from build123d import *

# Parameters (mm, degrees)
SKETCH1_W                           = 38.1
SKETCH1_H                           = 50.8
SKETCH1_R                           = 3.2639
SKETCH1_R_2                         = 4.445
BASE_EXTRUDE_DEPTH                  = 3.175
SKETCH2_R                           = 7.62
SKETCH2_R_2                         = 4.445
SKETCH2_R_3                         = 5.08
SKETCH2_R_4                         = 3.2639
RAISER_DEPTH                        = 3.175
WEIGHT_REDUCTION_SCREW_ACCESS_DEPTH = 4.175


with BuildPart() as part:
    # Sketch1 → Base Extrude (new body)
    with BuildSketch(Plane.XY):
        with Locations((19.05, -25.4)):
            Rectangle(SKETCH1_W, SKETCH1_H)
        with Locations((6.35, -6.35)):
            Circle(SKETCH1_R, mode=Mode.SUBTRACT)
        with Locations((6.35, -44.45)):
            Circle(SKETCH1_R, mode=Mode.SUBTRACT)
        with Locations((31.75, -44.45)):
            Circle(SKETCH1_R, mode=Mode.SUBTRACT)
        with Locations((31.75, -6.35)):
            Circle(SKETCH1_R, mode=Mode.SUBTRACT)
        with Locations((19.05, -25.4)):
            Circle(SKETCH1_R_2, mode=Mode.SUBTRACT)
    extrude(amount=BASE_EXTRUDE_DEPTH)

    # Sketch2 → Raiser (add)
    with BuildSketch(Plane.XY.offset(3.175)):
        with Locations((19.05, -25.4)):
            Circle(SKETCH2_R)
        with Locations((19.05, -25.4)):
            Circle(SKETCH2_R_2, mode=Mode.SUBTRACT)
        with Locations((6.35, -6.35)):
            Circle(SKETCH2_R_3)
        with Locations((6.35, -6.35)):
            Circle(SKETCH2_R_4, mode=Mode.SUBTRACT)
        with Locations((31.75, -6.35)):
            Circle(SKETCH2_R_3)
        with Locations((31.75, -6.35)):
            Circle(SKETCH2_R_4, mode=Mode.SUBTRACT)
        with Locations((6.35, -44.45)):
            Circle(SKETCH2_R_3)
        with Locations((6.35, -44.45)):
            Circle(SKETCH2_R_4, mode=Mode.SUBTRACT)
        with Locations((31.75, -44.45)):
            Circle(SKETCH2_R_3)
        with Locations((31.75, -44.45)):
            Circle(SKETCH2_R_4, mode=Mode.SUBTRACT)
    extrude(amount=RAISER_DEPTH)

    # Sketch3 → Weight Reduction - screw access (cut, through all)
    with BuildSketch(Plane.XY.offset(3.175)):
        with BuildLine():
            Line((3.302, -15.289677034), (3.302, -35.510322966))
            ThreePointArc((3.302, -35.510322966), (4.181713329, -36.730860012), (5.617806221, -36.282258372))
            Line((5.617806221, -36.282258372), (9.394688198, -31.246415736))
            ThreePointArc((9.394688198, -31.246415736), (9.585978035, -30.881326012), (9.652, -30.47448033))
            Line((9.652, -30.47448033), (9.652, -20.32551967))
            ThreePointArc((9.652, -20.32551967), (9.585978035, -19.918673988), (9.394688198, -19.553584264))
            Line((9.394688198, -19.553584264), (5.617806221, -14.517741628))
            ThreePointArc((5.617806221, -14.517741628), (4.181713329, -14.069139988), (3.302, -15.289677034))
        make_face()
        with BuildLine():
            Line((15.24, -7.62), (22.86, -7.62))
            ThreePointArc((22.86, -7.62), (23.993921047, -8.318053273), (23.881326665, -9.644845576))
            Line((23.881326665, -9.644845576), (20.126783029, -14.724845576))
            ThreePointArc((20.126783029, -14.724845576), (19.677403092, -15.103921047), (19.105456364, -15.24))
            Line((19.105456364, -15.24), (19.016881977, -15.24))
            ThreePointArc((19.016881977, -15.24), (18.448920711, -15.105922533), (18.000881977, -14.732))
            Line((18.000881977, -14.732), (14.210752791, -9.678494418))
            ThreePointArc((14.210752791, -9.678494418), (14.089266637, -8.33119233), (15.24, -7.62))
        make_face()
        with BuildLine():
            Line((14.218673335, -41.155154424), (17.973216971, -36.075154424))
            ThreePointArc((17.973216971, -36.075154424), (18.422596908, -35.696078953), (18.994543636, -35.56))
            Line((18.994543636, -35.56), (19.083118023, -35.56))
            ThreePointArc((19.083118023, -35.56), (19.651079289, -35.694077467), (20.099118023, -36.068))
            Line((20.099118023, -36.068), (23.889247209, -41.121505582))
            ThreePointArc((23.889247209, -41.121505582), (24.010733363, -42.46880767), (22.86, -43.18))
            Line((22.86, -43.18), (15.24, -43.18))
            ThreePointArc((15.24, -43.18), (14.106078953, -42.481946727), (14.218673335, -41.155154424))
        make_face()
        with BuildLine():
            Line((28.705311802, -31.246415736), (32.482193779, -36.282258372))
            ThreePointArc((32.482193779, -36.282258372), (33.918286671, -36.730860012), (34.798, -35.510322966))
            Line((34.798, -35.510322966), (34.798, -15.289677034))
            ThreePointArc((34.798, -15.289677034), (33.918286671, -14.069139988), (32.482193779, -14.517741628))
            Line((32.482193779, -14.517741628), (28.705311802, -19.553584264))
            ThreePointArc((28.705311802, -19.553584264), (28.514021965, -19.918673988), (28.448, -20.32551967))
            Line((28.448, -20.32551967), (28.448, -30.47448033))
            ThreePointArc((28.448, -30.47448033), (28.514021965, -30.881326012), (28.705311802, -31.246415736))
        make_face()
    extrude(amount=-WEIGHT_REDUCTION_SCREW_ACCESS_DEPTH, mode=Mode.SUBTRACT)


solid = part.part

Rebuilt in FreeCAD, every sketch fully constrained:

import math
import FreeCAD as App
import Part
import Sketcher
Q = App.Units.Quantity

doc = App.newDocument("Part")
params = doc.addObject("Spreadsheet::Sheet", "Params")
for row, (alias, value) in enumerate([
    ("sketch1_diameter", "0.35 in"),
    ("sketch1_height", "2 in"),
    ("sketch1_diameter2", "0.257 in"),
    ("sketch1_width", "1.5 in"),
    ("pad1_length", "0.125 in"),
    ("sketch2_diameter", "0.6 in"),
    ("sketch2_diameter2", "0.4 in"),
    ("sketch2_diameter3", "0.35 in"),
    ("sketch2_diameter4", "0.257 in"),
    ("pad2_length", "0.125 in"),
    ("sketch3_radius", "0.05 in"),
    ("sketch3_width", "0.3 in"),
], start=1):
    params.set(f"A{row}", alias)
    params.set(f"B{row}", "=" + value)
    params.setAlias(f"B{row}", alias)

body = doc.addObject("PartDesign::Body", "Body")

# Sketch on XY plane
sketch1 = body.newObject("Sketcher::SketchObject", "Sketch")
sketch1.AttachmentSupport = (doc.getObject("XY_Plane"), [""])
sketch1.MapMode = "FlatFace"
sketch1.addGeometry(Part.LineSegment(App.Vector(0, 0, 0), App.Vector(0, -50.8, 0)), False)
sketch1.addGeometry(Part.LineSegment(App.Vector(0, -50.8, 0), App.Vector(38.1, -50.8, 0)), False)
sketch1.addGeometry(Part.LineSegment(App.Vector(38.1, -50.8, 0), App.Vector(38.1, 0, 0)), False)
sketch1.addGeometry(Part.LineSegment(App.Vector(38.1, 0, 0), App.Vector(0, 0, 0)), False)
sketch1.addGeometry(Part.Circle(App.Vector(6.3, -44.5, 0), App.Vector(0, 0, 1), 3.3), False)
sketch1.addGeometry(Part.Circle(App.Vector(31.8, -44.5, 0), App.Vector(0, 0, 1), 3.3), False)
sketch1.addGeometry(Part.Circle(App.Vector(6.3, -6.3, 0), App.Vector(0, 0, 1), 3.3), False)
sketch1.addGeometry(Part.Circle(App.Vector(19.1, -25.4, 0), App.Vector(0, 0, 1), 4.4), False)
sketch1.addGeometry(Part.Circle(App.Vector(31.8, -6.3, 0), App.Vector(0, 0, 1), 3.3), False)
sketch1.addConstraint(Sketcher.Constraint("Coincident", 0, 2, 1, 1))
sketch1.addConstraint(Sketcher.Constraint("Coincident", 1, 2, 2, 1))
sketch1.addConstraint(Sketcher.Constraint("Coincident", 2, 2, 3, 1))
sketch1.addConstraint(Sketcher.Constraint("Coincident", 3, 2, 0, 1))
sketch1.addConstraint(Sketcher.Constraint("Vertical", 0))
sketch1.addConstraint(Sketcher.Constraint("Horizontal", 1))
sketch1.addConstraint(Sketcher.Constraint("Vertical", 2))
sketch1.addConstraint(Sketcher.Constraint("Horizontal", 3))
sketch1.addConstraint(Sketcher.Constraint("Coincident", 3, 2, -1, 1))
sketch1.addConstraint(Sketcher.Constraint("Equal", 4, 5))
sketch1.addConstraint(Sketcher.Constraint("Equal", 5, 6))
sketch1.addConstraint(Sketcher.Constraint("Equal", 6, 8))
sketch1.addConstraint(Sketcher.Constraint("Horizontal", 4, 3, 5, 3))
sketch1.addConstraint(Sketcher.Constraint("Horizontal", 6, 3, 8, 3))
sketch1.addConstraint(Sketcher.Constraint("Vertical", 4, 3, 6, 3))
sketch1.addConstraint(Sketcher.Constraint("Vertical", 5, 3, 8, 3))
sketch1.addConstraint(Sketcher.Constraint("Diameter", 7, Q("0.35 in")))
sketch1.addConstraint(Sketcher.Constraint("DistanceY", 0, 2, 0, 1, Q("2 in")))
sketch1.addConstraint(Sketcher.Constraint("Diameter", 4, Q("0.257 in")))
sketch1.addConstraint(Sketcher.Constraint("DistanceX", 1, 1, 1, 2, Q("1.5 in")))
sketch1.addConstraint(Sketcher.Constraint("DistanceY", 7, 3, -1, 1, Q("1 in")))
sketch1.addConstraint(Sketcher.Constraint("DistanceX", 4, 3, 5, 3, Q("1 in")))
sketch1.addConstraint(Sketcher.Constraint("DistanceY", 4, 3, 6, 3, Q("1.5 in")))
sketch1.addConstraint(Sketcher.Constraint("DistanceX", 6, 3, 7, 3, Q("0.5 in")))
sketch1.addConstraint(Sketcher.Constraint("DistanceX", -1, 1, 4, 3, Q("0.25 in")))
sketch1.addConstraint(Sketcher.Constraint("DistanceY", 4, 3, -1, 1, Q("1.75 in")))
sketch1.setExpression("Constraints[16]", "Params.sketch1_diameter")
sketch1.setExpression("Constraints[17]", "Params.sketch1_height")
sketch1.setExpression("Constraints[18]", "Params.sketch1_diameter2")
sketch1.setExpression("Constraints[19]", "Params.sketch1_width")
pad1 = body.newObject("PartDesign::Pad", "Pad")
pad1.Profile = sketch1
pad1.setExpression("Length", "Params.pad1_length")

# Sketch on XY plane
sketch2 = body.newObject("Sketcher::SketchObject", "Sketch001")
sketch2.AttachmentSupport = (doc.getObject("XY_Plane"), [""])
sketch2.MapMode = "FlatFace"
sketch2.AttachmentOffset = App.Placement(App.Vector(0, 0, 0.125 * 25.4), App.Rotation())
sketch2.addGeometry(Part.Circle(App.Vector(19.1, -25.4, 0), App.Vector(0, 0, 1), 7.6), False)
sketch2.addGeometry(Part.Circle(App.Vector(19.1, -25.4, 0), App.Vector(0, 0, 1), 4.4), False)
sketch2.addGeometry(Part.Circle(App.Vector(6.3, -6.3, 0), App.Vector(0, 0, 1), 5.1), False)
sketch2.addGeometry(Part.Circle(App.Vector(6.3, -6.3, 0), App.Vector(0, 0, 1), 3.3), False)
sketch2.addGeometry(Part.Circle(App.Vector(31.8, -6.3, 0), App.Vector(0, 0, 1), 5.1), False)
sketch2.addGeometry(Part.Circle(App.Vector(31.8, -6.3, 0), App.Vector(0, 0, 1), 3.3), False)
sketch2.addGeometry(Part.Circle(App.Vector(6.3, -44.5, 0), App.Vector(0, 0, 1), 5.1), False)
sketch2.addGeometry(Part.Circle(App.Vector(6.3, -44.5, 0), App.Vector(0, 0, 1), 3.3), False)
sketch2.addGeometry(Part.Circle(App.Vector(31.8, -44.5, 0), App.Vector(0, 0, 1), 5.1), False)
sketch2.addGeometry(Part.Circle(App.Vector(31.8, -44.5, 0), App.Vector(0, 0, 1), 3.3), False)
sketch2.addConstraint(Sketcher.Constraint("Coincident", 1, 3, 0, 3))
sketch2.addConstraint(Sketcher.Constraint("Coincident", 3, 3, 2, 3))
sketch2.addConstraint(Sketcher.Constraint("Coincident", 5, 3, 4, 3))
sketch2.addConstraint(Sketcher.Constraint("Coincident", 7, 3, 6, 3))
sketch2.addConstraint(Sketcher.Constraint("Coincident", 9, 3, 8, 3))
sketch2.addConstraint(Sketcher.Constraint("Equal", 2, 4))
sketch2.addConstraint(Sketcher.Constraint("Equal", 3, 5))
sketch2.addConstraint(Sketcher.Constraint("Equal", 4, 6))
sketch2.addConstraint(Sketcher.Constraint("Equal", 5, 7))
sketch2.addConstraint(Sketcher.Constraint("Equal", 6, 8))
sketch2.addConstraint(Sketcher.Constraint("Equal", 7, 9))
sketch2.addConstraint(Sketcher.Constraint("Horizontal", 3, 3, 4, 3))
sketch2.addConstraint(Sketcher.Constraint("Horizontal", 7, 3, 8, 3))
sketch2.addConstraint(Sketcher.Constraint("Vertical", 3, 3, 6, 3))
sketch2.addConstraint(Sketcher.Constraint("Vertical", 5, 3, 8, 3))
sketch2.addConstraint(Sketcher.Constraint("Diameter", 0, Q("0.6 in")))
sketch2.addConstraint(Sketcher.Constraint("Diameter", 2, Q("0.4 in")))
sketch2.addConstraint(Sketcher.Constraint("Diameter", 1, Q("0.35 in")))
sketch2.addConstraint(Sketcher.Constraint("Diameter", 3, Q("0.257 in")))
sketch2.addConstraint(Sketcher.Constraint("DistanceY", 0, 3, -1, 1, Q("1 in")))
sketch2.addConstraint(Sketcher.Constraint("DistanceX", 2, 3, 4, 3, Q("1 in")))
sketch2.addConstraint(Sketcher.Constraint("DistanceX", 2, 3, 0, 3, Q("0.5 in")))
sketch2.addConstraint(Sketcher.Constraint("DistanceY", 6, 3, 2, 3, Q("1.5 in")))
sketch2.addConstraint(Sketcher.Constraint("DistanceX", -1, 1, 0, 3, Q("0.75 in")))
sketch2.addConstraint(Sketcher.Constraint("DistanceY", 2, 3, -1, 1, Q("0.25 in")))
sketch2.setExpression("Constraints[15]", "Params.sketch2_diameter")
sketch2.setExpression("Constraints[16]", "Params.sketch2_diameter2")
sketch2.setExpression("Constraints[17]", "Params.sketch2_diameter3")
sketch2.setExpression("Constraints[18]", "Params.sketch2_diameter4")
pad2 = body.newObject("PartDesign::Pad", "Pad001")
pad2.Profile = sketch2
pad2.setExpression("Length", "Params.pad2_length")

# Sketch on XY plane
sketch3 = body.newObject("Sketcher::SketchObject", "Sketch002")
sketch3.AttachmentSupport = (doc.getObject("XY_Plane"), [""])
sketch3.MapMode = "FlatFace"
sketch3.AttachmentOffset = App.Placement(App.Vector(0, 0, 0.125 * 25.4), App.Rotation())
sketch3.addGeometry(Part.LineSegment(App.Vector(3.3, -15.29, 0), App.Vector(3.3, -35.51, 0)), False)
sketch3.addGeometry(Part.ArcOfCircle(Part.Circle(App.Vector(4.59, -35.51, 0), App.Vector(0, 0, 1), 1.29), math.radians(180), math.radians(323)), False)
sketch3.addGeometry(Part.LineSegment(App.Vector(5.62, -36.28, 0), App.Vector(9.39, -31.25, 0)), False)
sketch3.addGeometry(Part.ArcOfCircle(Part.Circle(App.Vector(8.37, -30.47, 0), App.Vector(0, 0, 1), 1.29), math.radians(-37), math.radians(0)), False)
sketch3.addGeometry(Part.LineSegment(App.Vector(9.65, -30.47, 0), App.Vector(9.65, -20.33, 0)), False)
sketch3.addGeometry(Part.ArcOfCircle(Part.Circle(App.Vector(8.37, -20.33, 0), App.Vector(0, 0, 1), 1.29), math.radians(0), math.radians(37)), False)
sketch3.addGeometry(Part.LineSegment(App.Vector(9.39, -19.55, 0), App.Vector(5.62, -14.52, 0)), False)
sketch3.addGeometry(Part.ArcOfCircle(Part.Circle(App.Vector(4.59, -15.29, 0), App.Vector(0, 0, 1), 1.29), math.radians(37), math.radians(180)), False)
sketch3.addGeometry(Part.LineSegment(App.Vector(22.86, -7.62, 0), App.Vector(15.24, -7.62, 0)), False)
sketch3.addGeometry(Part.ArcOfCircle(Part.Circle(App.Vector(15.24, -8.91, 0), App.Vector(0, 0, 1), 1.29), math.radians(90), math.radians(217)), False)
sketch3.addGeometry(Part.LineSegment(App.Vector(14.21, -9.68, 0), App.Vector(18, -14.73, 0)), False)
sketch3.addGeometry(Part.ArcOfCircle(Part.Circle(App.Vector(19.02, -13.97, 0), App.Vector(0, 0, 1), 1.27), math.radians(-143), math.radians(-90)), False)
sketch3.addGeometry(Part.LineSegment(App.Vector(19.02, -15.24, 0), App.Vector(19.11, -15.24, 0)), False)
sketch3.addGeometry(Part.ArcOfCircle(Part.Circle(App.Vector(19.11, -13.97, 0), App.Vector(0, 0, 1), 1.27), math.radians(-90), math.radians(-36)), False)
sketch3.addGeometry(Part.LineSegment(App.Vector(20.13, -14.72, 0), App.Vector(23.88, -9.64, 0)), False)
sketch3.addGeometry(Part.ArcOfCircle(Part.Circle(App.Vector(22.86, -8.89, 0), App.Vector(0, 0, 1), 1.27), math.radians(-36), math.radians(90)), False)
sketch3.addGeometry(Part.LineSegment(App.Vector(17.97, -36.08, 0), App.Vector(14.22, -41.16, 0)), False)
sketch3.addGeometry(Part.ArcOfCircle(Part.Circle(App.Vector(15.24, -41.91, 0), App.Vector(0, 0, 1), 1.27), math.radians(144), math.radians(270)), False)
sketch3.addGeometry(Part.LineSegment(App.Vector(15.24, -43.18, 0), App.Vector(22.86, -43.18, 0)), False)
sketch3.addGeometry(Part.ArcOfCircle(Part.Circle(App.Vector(22.86, -41.89, 0), App.Vector(0, 0, 1), 1.29), math.radians(-90), math.radians(37)), False)
sketch3.addGeometry(Part.LineSegment(App.Vector(23.89, -41.12, 0), App.Vector(20.1, -36.07, 0)), False)
sketch3.addGeometry(Part.ArcOfCircle(Part.Circle(App.Vector(19.08, -36.83, 0), App.Vector(0, 0, 1), 1.27), math.radians(37), math.radians(90)), False)
sketch3.addGeometry(Part.LineSegment(App.Vector(19.08, -35.56, 0), App.Vector(18.99, -35.56, 0)), False)
sketch3.addGeometry(Part.ArcOfCircle(Part.Circle(App.Vector(18.99, -36.83, 0), App.Vector(0, 0, 1), 1.27), math.radians(90), math.radians(144)), False)
sketch3.addGeometry(Part.LineSegment(App.Vector(28.71, -31.25, 0), App.Vector(32.48, -36.28, 0)), False)
sketch3.addGeometry(Part.ArcOfCircle(Part.Circle(App.Vector(33.51, -35.51, 0), App.Vector(0, 0, 1), 1.29), math.radians(-143), math.radians(0)), False)
sketch3.addGeometry(Part.LineSegment(App.Vector(34.8, -35.51, 0), App.Vector(34.8, -15.29, 0)), False)
sketch3.addGeometry(Part.ArcOfCircle(Part.Circle(App.Vector(33.51, -15.29, 0), App.Vector(0, 0, 1), 1.29), math.radians(0), math.radians(143)), False)
sketch3.addGeometry(Part.LineSegment(App.Vector(32.48, -14.52, 0), App.Vector(28.71, -19.55, 0)), False)
sketch3.addGeometry(Part.ArcOfCircle(Part.Circle(App.Vector(29.73, -20.33, 0), App.Vector(0, 0, 1), 1.29), math.radians(143), math.radians(180)), False)
sketch3.addGeometry(Part.LineSegment(App.Vector(28.45, -20.33, 0), App.Vector(28.45, -30.47, 0)), False)
sketch3.addGeometry(Part.ArcOfCircle(Part.Circle(App.Vector(29.73, -30.47, 0), App.Vector(0, 0, 1), 1.29), math.radians(180), math.radians(217)), False)
sketch3.addConstraint(Sketcher.Constraint("Tangent", 0, 2, 1, 1))
sketch3.addConstraint(Sketcher.Constraint("Tangent", 1, 2, 2, 1))
sketch3.addConstraint(Sketcher.Constraint("Tangent", 2, 2, 3, 1))
sketch3.addConstraint(Sketcher.Constraint("Tangent", 3, 2, 4, 1))
sketch3.addConstraint(Sketcher.Constraint("Tangent", 4, 2, 5, 1))
sketch3.addConstraint(Sketcher.Constraint("Tangent", 5, 2, 6, 1))
sketch3.addConstraint(Sketcher.Constraint("Tangent", 6, 2, 7, 1))
sketch3.addConstraint(Sketcher.Constraint("Tangent", 7, 2, 0, 1))
sketch3.addConstraint(Sketcher.Constraint("Tangent", 8, 2, 9, 1))
sketch3.addConstraint(Sketcher.Constraint("Tangent", 9, 2, 10, 1))
sketch3.addConstraint(Sketcher.Constraint("Tangent", 10, 2, 11, 1))
sketch3.addConstraint(Sketcher.Constraint("Tangent", 11, 2, 12, 1))
sketch3.addConstraint(Sketcher.Constraint("Tangent", 12, 2, 13, 1))
sketch3.addConstraint(Sketcher.Constraint("Tangent", 13, 2, 14, 1))
sketch3.addConstraint(Sketcher.Constraint("Tangent", 14, 2, 15, 1))
sketch3.addConstraint(Sketcher.Constraint("Tangent", 15, 2, 8, 1))
sketch3.addConstraint(Sketcher.Constraint("Tangent", 16, 2, 17, 1))
sketch3.addConstraint(Sketcher.Constraint("Tangent", 17, 2, 18, 1))
sketch3.addConstraint(Sketcher.Constraint("Tangent", 18, 2, 19, 1))
sketch3.addConstraint(Sketcher.Constraint("Tangent", 19, 2, 20, 1))
sketch3.addConstraint(Sketcher.Constraint("Tangent", 20, 2, 21, 1))
sketch3.addConstraint(Sketcher.Constraint("Tangent", 21, 2, 22, 1))
sketch3.addConstraint(Sketcher.Constraint("Tangent", 22, 2, 23, 1))
sketch3.addConstraint(Sketcher.Constraint("Tangent", 23, 2, 16, 1))
sketch3.addConstraint(Sketcher.Constraint("Tangent", 24, 2, 25, 1))
sketch3.addConstraint(Sketcher.Constraint("Tangent", 25, 2, 26, 1))
sketch3.addConstraint(Sketcher.Constraint("Tangent", 26, 2, 27, 1))
sketch3.addConstraint(Sketcher.Constraint("Tangent", 27, 2, 28, 1))
sketch3.addConstraint(Sketcher.Constraint("Tangent", 28, 2, 29, 1))
sketch3.addConstraint(Sketcher.Constraint("Tangent", 29, 2, 30, 1))
sketch3.addConstraint(Sketcher.Constraint("Tangent", 30, 2, 31, 1))
sketch3.addConstraint(Sketcher.Constraint("Tangent", 31, 2, 24, 1))
sketch3.addConstraint(Sketcher.Constraint("Vertical", 0))
sketch3.addConstraint(Sketcher.Constraint("Vertical", 4))
sketch3.addConstraint(Sketcher.Constraint("Horizontal", 8))
sketch3.addConstraint(Sketcher.Constraint("Horizontal", 12))
sketch3.addConstraint(Sketcher.Constraint("Horizontal", 18))
sketch3.addConstraint(Sketcher.Constraint("Horizontal", 22))
sketch3.addConstraint(Sketcher.Constraint("Vertical", 26))
sketch3.addConstraint(Sketcher.Constraint("Vertical", 30))
sketch3.addConstraint(Sketcher.Constraint("Equal", 1, 3))
sketch3.addConstraint(Sketcher.Constraint("Equal", 3, 5))
sketch3.addConstraint(Sketcher.Constraint("Equal", 5, 7))
sketch3.addConstraint(Sketcher.Constraint("Equal", 7, 9))
sketch3.addConstraint(Sketcher.Constraint("Equal", 11, 13))
sketch3.addConstraint(Sketcher.Constraint("Equal", 13, 15))
sketch3.addConstraint(Sketcher.Constraint("Equal", 15, 17))
sketch3.addConstraint(Sketcher.Constraint("Equal", 9, 19))
sketch3.addConstraint(Sketcher.Constraint("Equal", 17, 21))
sketch3.addConstraint(Sketcher.Constraint("Equal", 21, 23))
sketch3.addConstraint(Sketcher.Constraint("Equal", 19, 25))
sketch3.addConstraint(Sketcher.Constraint("Equal", 25, 27))
sketch3.addConstraint(Sketcher.Constraint("Equal", 27, 29))
sketch3.addConstraint(Sketcher.Constraint("Equal", 29, 31))
sketch3.addConstraint(Sketcher.Constraint("Parallel", 6, 10))
sketch3.addConstraint(Sketcher.Constraint("Parallel", 14, 16))
sketch3.addConstraint(Sketcher.Constraint("Parallel", 10, 20))
sketch3.addConstraint(Sketcher.Constraint("Parallel", 20, 24))
sketch3.addConstraint(Sketcher.Constraint("Parallel", 2, 28))
sketch3.addConstraint(Sketcher.Constraint("Horizontal", 1, 3, 25, 3))
sketch3.addConstraint(Sketcher.Constraint("Horizontal", 7, 3, 27, 3))
sketch3.addConstraint(Sketcher.Constraint("Horizontal", 5, 3, 29, 3))
sketch3.addConstraint(Sketcher.Constraint("Horizontal", 3, 3, 31, 3))
sketch3.addConstraint(Sketcher.Constraint("Vertical", 9, 3, 17, 3))
sketch3.addConstraint(Sketcher.Constraint("Vertical", 15, 3, 19, 3))
sketch3.addConstraint(Sketcher.Constraint("Equal", 12, 22))
sketch3.addConstraint(Sketcher.Constraint("Equal", 10, 14))
sketch3.addConstraint(Sketcher.Constraint("Radius", 11, Q("0.05 in")))
sketch3.addConstraint(Sketcher.Constraint("DistanceX", 8, 2, 8, 1, Q("0.3 in")))
sketch3.addConstraint(Sketcher.Constraint("DistanceX", -1, 1, 9, 3, Q("0.6 in")))
sketch3.addConstraint(Sketcher.Constraint("DistanceY", 8, 2, -1, 1, Q("0.3 in")))
sketch3.addConstraint(Sketcher.Constraint("DistanceY", 11, 2, -1, 1, Q("0.6 in")))
sketch3.addConstraint(Sketcher.Constraint("DistanceY", 17, 2, -1, 1, Q("1.7 in")))
sketch3.addConstraint(Sketcher.Constraint("DistanceX", -1, 1, 0, 2, Q("0.13 in")))
sketch3.addConstraint(Sketcher.Constraint("DistanceX", -1, 1, 3, 2, Q("0.38 in")))
sketch3.addConstraint(Sketcher.Constraint("DistanceY", 10, 2, -1, 1, Q("0.58 in")))
sketch3.addConstraint(Sketcher.Constraint("DistanceX", -1, 1, 25, 2, Q("1.37 in")))
sketch3.addConstraint(Sketcher.Constraint("Radius", 1, Q("1.286559 mm")))
sketch3.addConstraint(Sketcher.Constraint("DistanceY", 4, 1, 4, 2, Q("10.148961 mm")))
sketch3.addConstraint(Sketcher.Constraint("DistanceY", 3, 3, -1, 1, Q("30.47448 mm")))
sketch3.setExpression("Constraints[67]", "Params.sketch3_radius")
sketch3.setExpression("Constraints[68]", "Params.sketch3_width")
pocket1 = body.newObject("PartDesign::Pocket", "Pocket")
pocket1.Profile = sketch3
pocket1.Type = "ThroughAll"

doc.recompute()
